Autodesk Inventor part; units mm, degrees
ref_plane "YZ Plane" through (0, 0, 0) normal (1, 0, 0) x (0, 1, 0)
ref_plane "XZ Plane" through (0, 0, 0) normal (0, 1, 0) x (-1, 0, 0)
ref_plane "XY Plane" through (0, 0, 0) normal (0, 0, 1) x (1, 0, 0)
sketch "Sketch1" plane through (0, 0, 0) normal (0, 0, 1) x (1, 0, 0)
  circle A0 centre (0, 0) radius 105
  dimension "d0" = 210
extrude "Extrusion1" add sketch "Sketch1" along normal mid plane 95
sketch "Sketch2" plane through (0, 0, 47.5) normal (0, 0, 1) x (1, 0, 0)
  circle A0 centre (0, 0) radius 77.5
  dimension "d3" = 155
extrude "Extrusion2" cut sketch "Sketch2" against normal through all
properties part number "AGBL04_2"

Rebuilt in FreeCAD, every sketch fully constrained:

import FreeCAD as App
import Part
import Sketcher

V = App.Vector

doc = App.newDocument("Part")
body = doc.addObject("PartDesign::Body", "Body")

# Sketch on XY plane
sketch1 = doc.addObject("Sketcher::SketchObject", "Sketch")
body.addObject(sketch1)
sketch1.AttachmentSupport = (doc.XY_Plane, [""])
sketch1.MapMode = "FlatFace"
sketch1.addGeometry(Part.Circle(V(0, 0, 0), V(0, 0, 1), 105), False)
sketch1.addConstraint(Sketcher.Constraint("Coincident", 0, 3, -1, 1))
sketch1.addConstraint(Sketcher.Constraint("Diameter", 0, 210.0))
pad1 = doc.addObject("PartDesign::Pad", "Pad")
body.addObject(pad1)
pad1.Profile = sketch1
pad1.Length = 95
pad1.Midplane = True

# Sketch on XY plane
sketch2 = doc.addObject("Sketcher::SketchObject", "Sketch001")
body.addObject(sketch2)
sketch2.AttachmentSupport = (doc.XY_Plane, [""])
sketch2.MapMode = "FlatFace"
sketch2.AttachmentOffset = App.Placement(V(0, 0, 47.5), App.Rotation())
sketch2.addGeometry(Part.Circle(V(0, 0, 0), V(0, 0, 1), 77.5), False)
sketch2.addConstraint(Sketcher.Constraint("Coincident", 0, 3, -1, 1))
sketch2.addConstraint(Sketcher.Constraint("Diameter", 0, 155.0))
pocket1 = doc.addObject("PartDesign::Pocket", "Pocket")
body.addObject(pocket1)
pocket1.Profile = sketch2
pocket1.Type = "ThroughAll"

doc.recompute()
